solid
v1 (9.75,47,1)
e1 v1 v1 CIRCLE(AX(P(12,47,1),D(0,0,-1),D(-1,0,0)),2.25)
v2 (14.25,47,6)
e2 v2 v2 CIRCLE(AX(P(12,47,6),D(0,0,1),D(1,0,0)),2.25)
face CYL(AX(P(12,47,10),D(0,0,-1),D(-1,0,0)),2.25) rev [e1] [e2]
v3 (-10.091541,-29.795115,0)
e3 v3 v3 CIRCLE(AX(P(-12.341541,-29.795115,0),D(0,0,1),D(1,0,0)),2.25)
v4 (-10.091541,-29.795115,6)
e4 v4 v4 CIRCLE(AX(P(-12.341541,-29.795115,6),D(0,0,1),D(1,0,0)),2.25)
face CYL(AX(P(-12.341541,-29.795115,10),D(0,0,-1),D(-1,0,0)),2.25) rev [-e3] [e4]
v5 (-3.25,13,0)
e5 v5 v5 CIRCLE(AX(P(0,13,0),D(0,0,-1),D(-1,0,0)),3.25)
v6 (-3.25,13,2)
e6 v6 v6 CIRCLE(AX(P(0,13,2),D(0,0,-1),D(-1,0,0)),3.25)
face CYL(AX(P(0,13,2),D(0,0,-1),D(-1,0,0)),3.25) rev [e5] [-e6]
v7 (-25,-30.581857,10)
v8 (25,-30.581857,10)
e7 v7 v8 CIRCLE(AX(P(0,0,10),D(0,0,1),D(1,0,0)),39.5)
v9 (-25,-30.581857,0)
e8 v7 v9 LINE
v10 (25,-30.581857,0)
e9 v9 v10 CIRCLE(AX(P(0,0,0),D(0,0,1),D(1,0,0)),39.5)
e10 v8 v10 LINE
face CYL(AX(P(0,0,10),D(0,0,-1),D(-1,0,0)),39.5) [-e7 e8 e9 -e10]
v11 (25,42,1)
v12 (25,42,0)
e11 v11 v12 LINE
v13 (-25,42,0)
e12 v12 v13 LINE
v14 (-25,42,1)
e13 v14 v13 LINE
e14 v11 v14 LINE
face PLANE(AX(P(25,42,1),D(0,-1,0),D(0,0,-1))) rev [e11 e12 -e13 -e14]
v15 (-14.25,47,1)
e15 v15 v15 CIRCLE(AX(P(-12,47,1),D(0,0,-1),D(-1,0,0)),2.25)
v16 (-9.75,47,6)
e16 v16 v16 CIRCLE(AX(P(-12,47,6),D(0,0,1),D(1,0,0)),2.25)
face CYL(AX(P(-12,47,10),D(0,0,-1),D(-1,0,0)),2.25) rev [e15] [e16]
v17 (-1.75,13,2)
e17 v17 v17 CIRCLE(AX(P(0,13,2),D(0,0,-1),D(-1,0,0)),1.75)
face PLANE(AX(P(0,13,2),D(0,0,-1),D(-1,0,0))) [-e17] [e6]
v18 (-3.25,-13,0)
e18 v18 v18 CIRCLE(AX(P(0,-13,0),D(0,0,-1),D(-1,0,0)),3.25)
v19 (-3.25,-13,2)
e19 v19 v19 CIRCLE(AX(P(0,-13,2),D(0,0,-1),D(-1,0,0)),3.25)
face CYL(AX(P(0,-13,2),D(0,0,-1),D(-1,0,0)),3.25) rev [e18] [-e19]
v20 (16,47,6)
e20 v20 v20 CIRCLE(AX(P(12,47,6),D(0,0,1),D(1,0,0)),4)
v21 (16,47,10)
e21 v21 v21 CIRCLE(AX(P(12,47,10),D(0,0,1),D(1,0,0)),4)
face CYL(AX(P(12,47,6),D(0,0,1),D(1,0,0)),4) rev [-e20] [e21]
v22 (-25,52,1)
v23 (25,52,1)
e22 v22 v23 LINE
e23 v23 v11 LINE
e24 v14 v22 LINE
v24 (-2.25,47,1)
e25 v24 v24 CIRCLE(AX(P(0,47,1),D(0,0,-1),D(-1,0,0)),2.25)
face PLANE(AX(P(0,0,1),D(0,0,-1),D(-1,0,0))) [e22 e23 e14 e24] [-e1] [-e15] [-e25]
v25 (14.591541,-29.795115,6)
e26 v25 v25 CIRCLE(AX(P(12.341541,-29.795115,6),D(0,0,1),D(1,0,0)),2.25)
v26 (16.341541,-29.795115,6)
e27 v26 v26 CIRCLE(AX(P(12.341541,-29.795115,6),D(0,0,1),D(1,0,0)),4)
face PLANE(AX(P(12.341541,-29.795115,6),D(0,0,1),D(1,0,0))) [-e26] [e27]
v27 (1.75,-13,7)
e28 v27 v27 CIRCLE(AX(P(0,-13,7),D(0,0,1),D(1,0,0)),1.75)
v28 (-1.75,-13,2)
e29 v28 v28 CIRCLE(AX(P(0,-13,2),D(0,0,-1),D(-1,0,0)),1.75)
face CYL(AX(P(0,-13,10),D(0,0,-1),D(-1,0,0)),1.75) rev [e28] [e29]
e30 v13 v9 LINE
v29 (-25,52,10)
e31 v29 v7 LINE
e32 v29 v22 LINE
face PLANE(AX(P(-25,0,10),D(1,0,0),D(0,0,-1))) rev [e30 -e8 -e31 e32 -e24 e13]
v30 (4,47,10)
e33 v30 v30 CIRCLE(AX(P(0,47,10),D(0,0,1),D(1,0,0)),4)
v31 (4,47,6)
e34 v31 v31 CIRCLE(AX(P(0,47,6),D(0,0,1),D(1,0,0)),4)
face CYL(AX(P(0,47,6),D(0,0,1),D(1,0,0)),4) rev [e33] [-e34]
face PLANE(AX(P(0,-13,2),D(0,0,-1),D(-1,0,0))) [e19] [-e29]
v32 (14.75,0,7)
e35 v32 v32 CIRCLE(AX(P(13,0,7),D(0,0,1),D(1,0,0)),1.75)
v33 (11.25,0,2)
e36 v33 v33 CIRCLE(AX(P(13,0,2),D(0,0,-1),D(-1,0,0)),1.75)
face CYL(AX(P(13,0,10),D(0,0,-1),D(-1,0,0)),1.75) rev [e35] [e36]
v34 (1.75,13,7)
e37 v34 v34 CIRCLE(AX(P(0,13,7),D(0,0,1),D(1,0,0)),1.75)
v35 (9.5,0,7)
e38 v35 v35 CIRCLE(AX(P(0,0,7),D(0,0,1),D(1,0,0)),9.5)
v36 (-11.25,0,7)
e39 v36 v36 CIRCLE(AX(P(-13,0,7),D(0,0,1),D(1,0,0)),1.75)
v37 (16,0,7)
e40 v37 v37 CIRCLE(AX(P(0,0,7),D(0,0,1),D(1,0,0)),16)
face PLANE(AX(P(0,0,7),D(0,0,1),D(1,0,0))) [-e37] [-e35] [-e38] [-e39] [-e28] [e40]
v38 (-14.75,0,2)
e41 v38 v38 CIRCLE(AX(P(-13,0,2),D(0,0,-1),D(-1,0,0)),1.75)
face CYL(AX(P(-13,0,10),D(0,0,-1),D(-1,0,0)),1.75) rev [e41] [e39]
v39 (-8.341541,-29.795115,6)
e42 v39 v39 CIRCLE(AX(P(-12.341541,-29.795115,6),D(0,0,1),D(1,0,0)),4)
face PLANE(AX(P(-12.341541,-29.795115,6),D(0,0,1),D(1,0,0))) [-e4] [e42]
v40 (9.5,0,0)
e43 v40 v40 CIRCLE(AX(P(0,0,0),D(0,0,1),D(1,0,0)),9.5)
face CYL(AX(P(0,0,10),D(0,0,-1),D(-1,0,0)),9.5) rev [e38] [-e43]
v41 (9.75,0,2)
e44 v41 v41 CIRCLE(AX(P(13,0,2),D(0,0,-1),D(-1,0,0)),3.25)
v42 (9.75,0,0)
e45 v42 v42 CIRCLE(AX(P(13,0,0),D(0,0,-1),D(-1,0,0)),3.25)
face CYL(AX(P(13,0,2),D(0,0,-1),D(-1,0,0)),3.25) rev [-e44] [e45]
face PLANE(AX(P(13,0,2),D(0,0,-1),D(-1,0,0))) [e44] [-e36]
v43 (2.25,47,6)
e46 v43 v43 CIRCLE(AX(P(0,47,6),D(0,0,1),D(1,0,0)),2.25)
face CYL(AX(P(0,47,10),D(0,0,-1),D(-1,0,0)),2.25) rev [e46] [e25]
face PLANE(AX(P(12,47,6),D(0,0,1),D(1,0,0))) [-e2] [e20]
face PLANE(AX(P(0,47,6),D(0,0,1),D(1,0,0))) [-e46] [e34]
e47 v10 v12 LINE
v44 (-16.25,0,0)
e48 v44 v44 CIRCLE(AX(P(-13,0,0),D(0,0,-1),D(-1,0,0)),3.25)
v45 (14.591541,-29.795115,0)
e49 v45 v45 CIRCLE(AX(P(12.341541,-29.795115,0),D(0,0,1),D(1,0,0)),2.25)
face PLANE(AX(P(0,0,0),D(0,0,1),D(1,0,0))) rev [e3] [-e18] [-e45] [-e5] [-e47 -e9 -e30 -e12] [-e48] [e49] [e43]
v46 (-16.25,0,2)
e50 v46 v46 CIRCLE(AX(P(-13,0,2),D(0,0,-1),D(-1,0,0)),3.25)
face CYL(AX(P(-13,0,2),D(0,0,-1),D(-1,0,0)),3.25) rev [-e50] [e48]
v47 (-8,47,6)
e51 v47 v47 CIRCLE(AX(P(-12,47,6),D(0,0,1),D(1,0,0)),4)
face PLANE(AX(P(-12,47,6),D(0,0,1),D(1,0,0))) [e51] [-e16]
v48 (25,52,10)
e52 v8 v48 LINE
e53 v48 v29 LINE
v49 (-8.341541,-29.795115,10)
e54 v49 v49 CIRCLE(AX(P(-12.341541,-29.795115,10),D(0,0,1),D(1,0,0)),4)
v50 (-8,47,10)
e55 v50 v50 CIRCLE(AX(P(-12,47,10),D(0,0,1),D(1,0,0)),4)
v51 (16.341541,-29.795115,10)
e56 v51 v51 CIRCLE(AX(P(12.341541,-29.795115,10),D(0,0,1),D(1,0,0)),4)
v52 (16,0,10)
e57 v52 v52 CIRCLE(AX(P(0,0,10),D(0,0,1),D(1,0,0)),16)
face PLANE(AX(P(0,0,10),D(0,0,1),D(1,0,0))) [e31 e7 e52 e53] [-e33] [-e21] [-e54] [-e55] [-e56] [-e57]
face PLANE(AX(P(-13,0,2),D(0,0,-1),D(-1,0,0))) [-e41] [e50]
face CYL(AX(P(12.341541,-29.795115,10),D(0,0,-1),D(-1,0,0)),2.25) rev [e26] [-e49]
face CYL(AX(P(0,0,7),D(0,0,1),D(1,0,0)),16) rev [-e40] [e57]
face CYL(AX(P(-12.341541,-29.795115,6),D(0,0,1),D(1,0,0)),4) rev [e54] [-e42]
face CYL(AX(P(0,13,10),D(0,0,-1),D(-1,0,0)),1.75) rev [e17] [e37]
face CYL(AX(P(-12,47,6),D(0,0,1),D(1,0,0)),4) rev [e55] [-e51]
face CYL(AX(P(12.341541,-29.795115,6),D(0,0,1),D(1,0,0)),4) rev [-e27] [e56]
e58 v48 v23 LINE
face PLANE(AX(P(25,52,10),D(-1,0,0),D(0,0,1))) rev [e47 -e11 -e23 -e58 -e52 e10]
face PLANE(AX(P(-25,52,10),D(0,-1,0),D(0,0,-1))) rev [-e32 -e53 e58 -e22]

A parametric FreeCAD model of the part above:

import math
import FreeCAD as App
import Part
import Sketcher

V = App.Vector
Q = App.Units.Quantity


def add_polygon(sketch, points):
    """Adds a closed chain of lines whose ends are joined by coincident constraints."""
    first, n = sketch.GeometryCount, len(points)
    for a, b in zip(points, points[1:] + points[:1]):
        sketch.addGeometry(Part.LineSegment(App.Vector(*a, 0), App.Vector(*b, 0)), False)
    for i in range(n):
        sketch.addConstraint(Sketcher.Constraint("Coincident", first + i, 2, first + (i + 1) % n, 1))

doc = App.newDocument("Part")
body = doc.addObject("PartDesign::Body", "Body")

# Sketch on XY plane
sketch1 = doc.addObject("Sketcher::SketchObject", "Sketch")
body.addObject(sketch1)
sketch1.AttachmentSupport = (doc.XY_Plane, [""])
sketch1.MapMode = "FlatFace"
sketch1.addGeometry(Part.LineSegment(V(25, 52, 0), V(-25, 52, 0)), False)
sketch1.addGeometry(Part.LineSegment(V(-25, 52, 0), V(-25, -30.6, 0)), False)
sketch1.addGeometry(Part.ArcOfCircle(Part.Circle(V(0, 0, 0), V(0, 0, 1), 39.5), math.radians(-129), math.radians(-51)), False)
sketch1.addGeometry(Part.LineSegment(V(25, -30.6, 0), V(25, 52, 0)), False)
sketch1.addGeometry(Part.Circle(V(12.3, -29.8, 0), V(0, 0, 1), 2.2), False)
sketch1.addGeometry(Part.Circle(V(13, 0, 0), V(0, 0, 1), 1.8), False)
sketch1.addGeometry(Part.Circle(V(0, -13, 0), V(0, 0, 1), 1.8), False)
sketch1.addGeometry(Part.Circle(V(-12.3, -29.8, 0), V(0, 0, 1), 2.2), False)
sketch1.addGeometry(Part.Circle(V(0, 0, 0), V(0, 0, 1), 9.5), False)
sketch1.addGeometry(Part.Circle(V(-13, 0, 0), V(0, 0, 1), 1.8), False)
sketch1.addGeometry(Part.Circle(V(12, 47, 0), V(0, 0, 1), 2.2), False)
sketch1.addGeometry(Part.Circle(V(0, 13, 0), V(0, 0, 1), 1.8), False)
sketch1.addGeometry(Part.Circle(V(0, 47, 0), V(0, 0, 1), 2.2), False)
sketch1.addGeometry(Part.Circle(V(-12, 47, 0), V(0, 0, 1), 2.2), False)
sketch1.addConstraint(Sketcher.Constraint("Coincident", 0, 2, 1, 1))
sketch1.addConstraint(Sketcher.Constraint("Coincident", 1, 2, 2, 1))
sketch1.addConstraint(Sketcher.Constraint("Coincident", 2, 2, 3, 1))
sketch1.addConstraint(Sketcher.Constraint("Coincident", 3, 2, 0, 1))
sketch1.addConstraint(Sketcher.Constraint("Horizontal", 0))
sketch1.addConstraint(Sketcher.Constraint("Vertical", 1))
sketch1.addConstraint(Sketcher.Constraint("Vertical", 3))
sketch1.addConstraint(Sketcher.Constraint("Coincident", 2, 3, -1, 1))
sketch1.addConstraint(Sketcher.Constraint("Coincident", 8, 3, -1, 1))
sketch1.addConstraint(Sketcher.Constraint("Equal", 5, 6))
sketch1.addConstraint(Sketcher.Constraint("Equal", 4, 7))
sketch1.addConstraint(Sketcher.Constraint("Equal", 6, 9))
sketch1.addConstraint(Sketcher.Constraint("Equal", 7, 10))
sketch1.addConstraint(Sketcher.Constraint("Equal", 9, 11))
sketch1.addConstraint(Sketcher.Constraint("Equal", 10, 12))
sketch1.addConstraint(Sketcher.Constraint("Equal", 12, 13))
sketch1.addConstraint(Sketcher.Constraint("Symmetric", 5, 3, 9, 3, -1, 1))
sketch1.addConstraint(Sketcher.Constraint("Symmetric", 6, 3, 11, 3, -1, 1))
sketch1.addConstraint(Sketcher.Constraint("Symmetric", 4, 3, 7, 3, -2))
sketch1.addConstraint(Sketcher.Constraint("Symmetric", 10, 3, 13, 3, -2))
sketch1.addConstraint(Sketcher.Constraint("PointOnObject", 5, 3, -1))
sketch1.addConstraint(Sketcher.Constraint("PointOnObject", 6, 3, -2))
sketch1.addConstraint(Sketcher.Constraint("PointOnObject", 12, 3, -2))
sketch1.addConstraint(Sketcher.Constraint("Horizontal", 10, 3, 12, 3))
sketch1.addConstraint(Sketcher.Constraint("Horizontal", 1, 2, 2, 2))
sketch1.addConstraint(Sketcher.Constraint("Diameter", 8, Q("19 mm")))
sketch1.addConstraint(Sketcher.Constraint("Diameter", 4, Q("4.5 mm")))
sketch1.addConstraint(Sketcher.Constraint("Diameter", 5, Q("3.5 mm")))
sketch1.addConstraint(Sketcher.Constraint("Radius", 2, Q("39.5 mm")))
sketch1.addConstraint(Sketcher.Constraint("DistanceX", 0, 2, 0, 1, Q("50 mm")))
sketch1.addConstraint(Sketcher.Constraint("DistanceX", -1, 1, 5, 3, Q("13 mm")))
sketch1.addConstraint(Sketcher.Constraint("DistanceY", 6, 3, -1, 1, Q("13 mm")))
sketch1.addConstraint(Sketcher.Constraint("DistanceX", -1, 1, 10, 3, Q("12 mm")))
sketch1.addConstraint(Sketcher.Constraint("DistanceY", -1, 1, 10, 3, Q("47 mm")))
sketch1.addConstraint(Sketcher.Constraint("DistanceY", -1, 1, 0, 2, Q("52 mm")))
sketch1.addConstraint(Sketcher.Constraint("DistanceX", -1, 1, 4, 3, Q("12.341541 mm")))
sketch1.addConstraint(Sketcher.Constraint("DistanceY", 4, 3, -1, 1, Q("29.795115 mm")))
pad1 = doc.addObject("PartDesign::Pad", "Pad")
body.addObject(pad1)
pad1.Profile = sketch1
pad1.Length = 10

# Sketch on XY plane
sketch2 = doc.addObject("Sketcher::SketchObject", "Sketch001")
body.addObject(sketch2)
sketch2.AttachmentSupport = (doc.XY_Plane, [""])
sketch2.MapMode = "FlatFace"
sketch2.AttachmentOffset = App.Placement(V(0, 0, 10), App.Rotation())
sketch2.addGeometry(Part.Circle(V(0, 0, 0), V(0, 0, 1), 16), False)
sketch2.addConstraint(Sketcher.Constraint("Coincident", 0, 3, -1, 1))
sketch2.addConstraint(Sketcher.Constraint("Diameter", 0, Q("32 mm")))
pocket1 = doc.addObject("PartDesign::Pocket", "Pocket")
body.addObject(pocket1)
pocket1.Profile = sketch2
pocket1.Length = 3

# Sketch on XY plane
sketch3 = doc.addObject("Sketcher::SketchObject", "Sketch002")
body.addObject(sketch3)
sketch3.AttachmentSupport = (doc.XY_Plane, [""])
sketch3.MapMode = "FlatFace"
sketch3.AttachmentOffset = App.Placement(V(0, 0, 10), App.Rotation())
sketch3.addGeometry(Part.Circle(V(-12, 47, 0), V(0, 0, 1), 4), False)
sketch3.addGeometry(Part.Circle(V(0, 47, 0), V(0, 0, 1), 4), False)
sketch3.addGeometry(Part.Circle(V(12, 47, 0), V(0, 0, 1), 4), False)
sketch3.addGeometry(Part.Circle(V(12.3, -29.8, 0), V(0, 0, 1), 4), False)
sketch3.addGeometry(Part.Circle(V(-12.3, -29.8, 0), V(0, 0, 1), 4), False)
sketch3.addConstraint(Sketcher.Constraint("Equal", 0, 1))
sketch3.addConstraint(Sketcher.Constraint("Equal", 1, 2))
sketch3.addConstraint(Sketcher.Constraint("Equal", 2, 3))
sketch3.addConstraint(Sketcher.Constraint("Equal", 3, 4))
sketch3.addConstraint(Sketcher.Constraint("Symmetric", 0, 3, 2, 3, -2))
sketch3.addConstraint(Sketcher.Constraint("Symmetric", 3, 3, 4, 3, -2))
sketch3.addConstraint(Sketcher.Constraint("PointOnObject", 1, 3, -2))
sketch3.addConstraint(Sketcher.Constraint("Horizontal", 0, 3, 1, 3))
sketch3.addConstraint(Sketcher.Constraint("Diameter", 0, Q("8 mm")))
sketch3.addConstraint(Sketcher.Constraint("DistanceX", 0, 3, -1, 1, Q("12 mm")))
sketch3.addConstraint(Sketcher.Constraint("DistanceY", -1, 1, 0, 3, Q("47 mm")))
sketch3.addConstraint(Sketcher.Constraint("DistanceX", -1, 1, 3, 3, Q("12.341541 mm")))
sketch3.addConstraint(Sketcher.Constraint("DistanceY", 3, 3, -1, 1, Q("29.795115 mm")))
pocket2 = doc.addObject("PartDesign::Pocket", "Pocket001")
body.addObject(pocket2)
pocket2.Profile = sketch3
pocket2.Length = 4

# Sketch on XY plane
sketch4 = doc.addObject("Sketcher::SketchObject", "Sketch003")
body.addObject(sketch4)
sketch4.AttachmentSupport = (doc.XY_Plane, [""])
sketch4.MapMode = "FlatFace"
add_polygon(sketch4, [(25, 52), (25, 42), (-25, 42), (-25, 52)])  # lines 0-3
sketch4.addConstraint(Sketcher.Constraint("Vertical", 0))
sketch4.addConstraint(Sketcher.Constraint("Horizontal", 1))
sketch4.addConstraint(Sketcher.Constraint("Vertical", 2))
sketch4.addConstraint(Sketcher.Constraint("Horizontal", 3))
sketch4.addConstraint(Sketcher.Constraint("DistanceX", 1, 2, 1, 1, Q("50 mm")))
sketch4.addConstraint(Sketcher.Constraint("DistanceY", 0, 2, 0, 1, Q("10 mm")))
sketch4.addConstraint(Sketcher.Constraint("DistanceX", -1, 1, 0, 2, Q("25 mm")))
sketch4.addConstraint(Sketcher.Constraint("DistanceY", -1, 1, 0, 2, Q("42 mm")))
pocket3 = doc.addObject("PartDesign::Pocket", "Pocket002")
body.addObject(pocket3)
pocket3.Profile = sketch4
pocket3.Length = 1
pocket3.Reversed = True

# Sketch on XY plane
sketch5 = doc.addObject("Sketcher::SketchObject", "Sketch004")
body.addObject(sketch5)
sketch5.AttachmentSupport = (doc.XY_Plane, [""])
sketch5.MapMode = "FlatFace"
sketch5.addGeometry(Part.Circle(V(0, 13, 0), V(0, 0, 1), 3.2), False)
sketch5.addGeometry(Part.Circle(V(-13, 0, 0), V(0, 0, 1), 3.2), False)
sketch5.addGeometry(Part.Circle(V(0, -13, 0), V(0, 0, 1), 3.2), False)
sketch5.addGeometry(Part.Circle(V(13, 0, 0), V(0, 0, 1), 3.2), False)
sketch5.addConstraint(Sketcher.Constraint("Equal", 0, 1))
sketch5.addConstraint(Sketcher.Constraint("Equal", 1, 2))
sketch5.addConstraint(Sketcher.Constraint("Equal", 2, 3))
sketch5.addConstraint(Sketcher.Constraint("Symmetric", 0, 3, 2, 3, -1, 1))
sketch5.addConstraint(Sketcher.Constraint("Symmetric", 1, 3, 3, 3, -1, 1))
sketch5.addConstraint(Sketcher.Constraint("PointOnObject", 0, 3, -2))
sketch5.addConstraint(Sketcher.Constraint("PointOnObject", 1, 3, -1))
sketch5.addConstraint(Sketcher.Constraint("Diameter", 0, Q("6.5 mm")))
sketch5.addConstraint(Sketcher.Constraint("DistanceY", -1, 1, 0, 3, Q("13 mm")))
sketch5.addConstraint(Sketcher.Constraint("DistanceX", 1, 3, -1, 1, Q("13 mm")))
pocket4 = doc.addObject("PartDesign::Pocket", "Pocket003")
body.addObject(pocket4)
pocket4.Profile = sketch5
pocket4.Length = 2
pocket4.Reversed = True

doc.recompute()
